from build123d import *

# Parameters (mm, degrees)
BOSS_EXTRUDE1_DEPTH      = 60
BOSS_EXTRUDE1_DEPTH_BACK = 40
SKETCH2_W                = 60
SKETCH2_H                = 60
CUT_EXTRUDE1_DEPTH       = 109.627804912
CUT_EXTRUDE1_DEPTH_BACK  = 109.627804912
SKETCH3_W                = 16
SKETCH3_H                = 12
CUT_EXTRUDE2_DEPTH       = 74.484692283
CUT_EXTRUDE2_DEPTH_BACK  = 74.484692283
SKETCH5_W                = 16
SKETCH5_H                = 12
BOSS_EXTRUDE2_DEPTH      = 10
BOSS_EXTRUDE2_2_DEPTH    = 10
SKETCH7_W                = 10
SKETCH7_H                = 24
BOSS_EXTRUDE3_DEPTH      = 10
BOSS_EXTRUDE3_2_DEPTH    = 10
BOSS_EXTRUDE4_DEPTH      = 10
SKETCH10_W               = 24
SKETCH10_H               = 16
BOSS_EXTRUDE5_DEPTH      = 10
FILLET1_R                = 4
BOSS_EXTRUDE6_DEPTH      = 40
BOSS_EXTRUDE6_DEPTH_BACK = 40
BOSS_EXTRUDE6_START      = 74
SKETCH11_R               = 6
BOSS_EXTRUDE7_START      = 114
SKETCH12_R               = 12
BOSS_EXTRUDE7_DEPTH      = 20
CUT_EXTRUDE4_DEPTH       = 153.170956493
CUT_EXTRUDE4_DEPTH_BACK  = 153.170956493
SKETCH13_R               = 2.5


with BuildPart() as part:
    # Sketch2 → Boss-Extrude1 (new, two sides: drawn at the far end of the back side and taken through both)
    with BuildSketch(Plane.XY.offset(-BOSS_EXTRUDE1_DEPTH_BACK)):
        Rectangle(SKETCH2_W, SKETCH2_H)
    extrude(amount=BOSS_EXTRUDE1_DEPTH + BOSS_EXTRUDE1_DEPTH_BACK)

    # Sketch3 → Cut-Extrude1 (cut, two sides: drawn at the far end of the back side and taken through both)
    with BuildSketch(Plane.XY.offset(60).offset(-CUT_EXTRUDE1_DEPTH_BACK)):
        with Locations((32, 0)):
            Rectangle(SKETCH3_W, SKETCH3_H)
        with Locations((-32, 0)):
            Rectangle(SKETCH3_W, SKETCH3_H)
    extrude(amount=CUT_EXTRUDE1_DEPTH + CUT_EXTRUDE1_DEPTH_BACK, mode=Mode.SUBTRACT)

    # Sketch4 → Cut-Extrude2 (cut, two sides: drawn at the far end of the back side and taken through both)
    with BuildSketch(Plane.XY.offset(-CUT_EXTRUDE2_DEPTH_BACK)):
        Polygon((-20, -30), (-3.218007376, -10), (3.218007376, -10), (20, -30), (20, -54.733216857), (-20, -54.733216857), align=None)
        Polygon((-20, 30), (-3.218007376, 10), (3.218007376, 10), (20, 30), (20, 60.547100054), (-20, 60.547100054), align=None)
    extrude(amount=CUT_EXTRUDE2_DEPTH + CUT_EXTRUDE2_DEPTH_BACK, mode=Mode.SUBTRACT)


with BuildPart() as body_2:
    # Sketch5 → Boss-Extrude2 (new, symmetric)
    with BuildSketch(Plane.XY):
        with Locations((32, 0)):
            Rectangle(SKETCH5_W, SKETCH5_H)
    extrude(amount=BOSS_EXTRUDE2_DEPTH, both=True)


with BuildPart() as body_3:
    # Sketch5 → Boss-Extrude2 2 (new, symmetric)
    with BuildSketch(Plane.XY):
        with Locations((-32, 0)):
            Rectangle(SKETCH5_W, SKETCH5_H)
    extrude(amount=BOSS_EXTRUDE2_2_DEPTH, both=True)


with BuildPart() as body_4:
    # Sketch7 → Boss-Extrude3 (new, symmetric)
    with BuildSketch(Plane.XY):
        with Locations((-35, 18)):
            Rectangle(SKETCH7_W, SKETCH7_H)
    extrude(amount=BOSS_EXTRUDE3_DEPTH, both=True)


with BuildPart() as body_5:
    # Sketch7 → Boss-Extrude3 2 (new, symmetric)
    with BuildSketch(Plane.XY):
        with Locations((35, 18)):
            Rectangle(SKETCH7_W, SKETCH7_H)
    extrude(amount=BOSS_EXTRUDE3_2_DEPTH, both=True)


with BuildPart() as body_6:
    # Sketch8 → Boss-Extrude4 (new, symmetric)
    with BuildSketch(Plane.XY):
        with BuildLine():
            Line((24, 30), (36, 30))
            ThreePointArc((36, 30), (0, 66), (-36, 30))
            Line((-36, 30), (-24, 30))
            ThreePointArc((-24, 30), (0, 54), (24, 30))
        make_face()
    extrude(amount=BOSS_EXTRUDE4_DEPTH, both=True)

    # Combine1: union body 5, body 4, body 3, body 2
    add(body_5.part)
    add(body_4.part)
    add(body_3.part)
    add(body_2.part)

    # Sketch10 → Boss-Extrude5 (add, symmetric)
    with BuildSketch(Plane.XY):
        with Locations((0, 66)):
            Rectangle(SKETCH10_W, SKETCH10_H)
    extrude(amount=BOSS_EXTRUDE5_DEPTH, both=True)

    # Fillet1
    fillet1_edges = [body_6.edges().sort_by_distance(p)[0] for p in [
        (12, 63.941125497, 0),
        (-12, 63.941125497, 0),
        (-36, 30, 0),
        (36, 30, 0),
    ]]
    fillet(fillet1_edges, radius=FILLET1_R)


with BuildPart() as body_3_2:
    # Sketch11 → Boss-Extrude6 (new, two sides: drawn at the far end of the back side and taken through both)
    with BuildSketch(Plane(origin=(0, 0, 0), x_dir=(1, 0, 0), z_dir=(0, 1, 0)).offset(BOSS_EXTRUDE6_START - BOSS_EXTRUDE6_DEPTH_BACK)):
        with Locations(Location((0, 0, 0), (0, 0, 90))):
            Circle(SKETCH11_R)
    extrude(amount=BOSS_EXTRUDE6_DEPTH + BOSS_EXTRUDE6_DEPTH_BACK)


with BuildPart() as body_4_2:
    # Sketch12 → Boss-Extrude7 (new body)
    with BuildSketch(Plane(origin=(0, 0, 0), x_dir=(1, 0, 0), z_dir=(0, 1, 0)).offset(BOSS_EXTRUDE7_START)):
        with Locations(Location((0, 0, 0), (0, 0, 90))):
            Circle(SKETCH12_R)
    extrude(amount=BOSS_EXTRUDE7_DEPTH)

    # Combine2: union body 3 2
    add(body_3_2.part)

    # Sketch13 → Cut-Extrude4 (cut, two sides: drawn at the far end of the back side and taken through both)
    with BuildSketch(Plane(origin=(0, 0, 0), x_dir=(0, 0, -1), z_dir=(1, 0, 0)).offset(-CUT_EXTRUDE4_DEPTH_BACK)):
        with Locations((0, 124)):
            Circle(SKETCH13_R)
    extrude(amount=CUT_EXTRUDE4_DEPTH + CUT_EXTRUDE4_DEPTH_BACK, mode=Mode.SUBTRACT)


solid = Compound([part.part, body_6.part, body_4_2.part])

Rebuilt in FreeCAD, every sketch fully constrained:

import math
import FreeCAD as App
import Part
import Sketcher

V = App.Vector
Q = App.Units.Quantity


def edges_at(feature, points):
    """Names of the edges that pass closest to the given points."""
    edges = feature.Shape.Edges
    near = lambda p: min(range(len(edges)), key=lambda i: edges[i].distToShape(Part.Vertex(*p))[0])
    return sorted({f"Edge{near(p) + 1}" for p in points})


def add_polygon(sketch, points):
    """Adds a closed chain of lines whose ends are joined by coincident constraints."""
    first, n = sketch.GeometryCount, len(points)
    for a, b in zip(points, points[1:] + points[:1]):
        sketch.addGeometry(Part.LineSegment(App.Vector(*a, 0), App.Vector(*b, 0)), False)
    for i in range(n):
        sketch.addConstraint(Sketcher.Constraint("Coincident", first + i, 2, first + (i + 1) % n, 1))

doc = App.newDocument("Part")
params = doc.addObject("Spreadsheet::Sheet", "Params")
for row, (alias, value) in enumerate([
    ("sketch1_width", "60 mm"),
    ("pad1_length", "60 mm"),
    ("pad1_length2", "40 mm"),
    ("sketch2_width", "16 mm"),
    ("sketch2_height", "12 mm"),
    ("sketch3_width", "40 mm"),
    ("sketch4_width", "16 mm"),
    ("sketch4_height", "12 mm"),
    ("pad2_length", "20 mm"),
    ("sketch5_width", "16 mm"),
    ("sketch5_height", "12 mm"),
    ("pad3_length", "20 mm"),
    ("sketch6_width", "10 mm"),
    ("sketch6_height", "24 mm"),
    ("pad4_length", "20 mm"),
    ("sketch7_width", "10 mm"),
    ("sketch7_height", "24 mm"),
    ("pad5_length", "20 mm"),
    ("sketch8_radius", "36 mm"),
    ("sketch8_radius2", "24 mm"),
    ("pad6_length", "20 mm"),
    ("sketch9_width", "24 mm"),
    ("sketch9_height", "16 mm"),
    ("pad7_length", "20 mm"),
    ("fillet_radius", "4 mm"),
    ("sketch10_diameter", "12 mm"),
    ("pad8_length", "40 mm"),
    ("pad8_length2", "40 mm"),
    ("sketch11_diameter", "24 mm"),
    ("pad9_length", "20 mm"),
    ("sketch12_diameter", "5 mm"),
], start=1):
    params.set(f"A{row}", alias)
    params.set(f"B{row}", "=" + value)
    params.setAlias(f"B{row}", alias)

body = doc.addObject("PartDesign::Body", "Body")

sketch1 = doc.addObject("Sketcher::SketchObject", "Sketch")
body.addObject(sketch1)
sketch1.AttachmentSupport = (doc.XY_Plane, [""])
sketch1.MapMode = "FlatFace"
add_polygon(sketch1, [(-30, 30), (-30, -30), (30, -30), (30, 30)])
sketch1.addConstraint(Sketcher.Constraint("Vertical", 0))
sketch1.addConstraint(Sketcher.Constraint("Horizontal", 1))
sketch1.addConstraint(Sketcher.Constraint("Vertical", 2))
sketch1.addConstraint(Sketcher.Constraint("Horizontal", 3))
sketch1.addConstraint(Sketcher.Constraint("Symmetric", 0, 2, 2, 2, -1, 1))
sketch1.addConstraint(Sketcher.Constraint("Equal", 3, 0))
sketch1.addConstraint(Sketcher.Constraint("DistanceX", 1, 1, 1, 2, 60.0))
sketch1.setExpression("Constraints[10]", "Params.sketch1_width")
pad1 = doc.addObject("PartDesign::Pad", "Pad")
body.addObject(pad1)
pad1.Profile = sketch1
pad1.Type = "TwoLengths"
pad1.setExpression("Length", "Params.pad1_length")
pad1.setExpression("Length2", "Params.pad1_length2")

sketch2 = doc.addObject("Sketcher::SketchObject", "Sketch001")
body.addObject(sketch2)
sketch2.AttachmentSupport = (doc.XY_Plane, [""])
sketch2.MapMode = "FlatFace"
sketch2.AttachmentOffset = App.Placement(V(0, 0, 60), App.Rotation())
add_polygon(sketch2, [(24, 6), (24, -6), (40, -6), (40, 6)])
add_polygon(sketch2, [(-40, 6), (-40, -6), (-24, -6), (-24, 6)])
sketch2.addConstraint(Sketcher.Constraint("Vertical", 0))
sketch2.addConstraint(Sketcher.Constraint("Horizontal", 1))
sketch2.addConstraint(Sketcher.Constraint("Vertical", 2))
sketch2.addConstraint(Sketcher.Constraint("Horizontal", 3))
sketch2.addConstraint(Sketcher.Constraint("Vertical", 4))
sketch2.addConstraint(Sketcher.Constraint("Horizontal", 5))
sketch2.addConstraint(Sketcher.Constraint("Vertical", 6))
sketch2.addConstraint(Sketcher.Constraint("Horizontal", 7))
sketch2.addConstraint(Sketcher.Constraint("Symmetric", 2, 2, 4, 2, -1, 1))
sketch2.addConstraint(Sketcher.Constraint("Symmetric", 0, 2, 6, 2, -1, 1))
sketch2.addConstraint(Sketcher.Constraint("Horizontal", 1, 2, 4, 2))
sketch2.addConstraint(Sketcher.Constraint("DistanceX", 1, 1, 1, 2, 16.0))
sketch2.addConstraint(Sketcher.Constraint("DistanceY", 0, 2, 0, 1, 12.0))
sketch2.addConstraint(Sketcher.Constraint("DistanceX", -1, 1, 0, 2, 24.0))
sketch2.setExpression("Constraints[19]", "Params.sketch2_width")
sketch2.setExpression("Constraints[20]", "Params.sketch2_height")
pocket1 = doc.addObject("PartDesign::Pocket", "Pocket")
body.addObject(pocket1)
pocket1.Profile = sketch2
pocket1.Type = "ThroughAll"
pocket1.Midplane = True

sketch3 = doc.addObject("Sketcher::SketchObject", "Sketch002")
body.addObject(sketch3)
sketch3.AttachmentSupport = (doc.XY_Plane, [""])
sketch3.MapMode = "FlatFace"
add_polygon(sketch3, [(-3, -10), (-20, -30), (-20, -55), (20, -55), (20, -30), (3, -10)])
add_polygon(sketch3, [(-20, 30), (-3, 10), (3, 10), (20, 30), (20, 61), (-20, 61)])
sketch3.addConstraint(Sketcher.Constraint("Vertical", 1))
sketch3.addConstraint(Sketcher.Constraint("Horizontal", 2))
sketch3.addConstraint(Sketcher.Constraint("Vertical", 3))
sketch3.addConstraint(Sketcher.Constraint("Horizontal", 5))
sketch3.addConstraint(Sketcher.Constraint("Horizontal", 7))
sketch3.addConstraint(Sketcher.Constraint("Vertical", 9))
sketch3.addConstraint(Sketcher.Constraint("Horizontal", 10))
sketch3.addConstraint(Sketcher.Constraint("Vertical", 11))
sketch3.addConstraint(Sketcher.Constraint("Symmetric", 4, 2, 6, 2, -1, 1))
sketch3.addConstraint(Sketcher.Constraint("Symmetric", 0, 2, 8, 2, -1, 1))
sketch3.addConstraint(Sketcher.Constraint("Symmetric", 3, 2, 11, 2, -1, 1))
sketch3.addConstraint(Sketcher.Constraint("Symmetric", 0, 2, 3, 2, -2))
sketch3.addConstraint(Sketcher.Constraint("Parallel", 0, 8))
sketch3.addConstraint(Sketcher.Constraint("Vertical", 5, 2, 6, 2))
sketch3.addConstraint(Sketcher.Constraint("DistanceX", 2, 1, 2, 2, 40.0))
sketch3.addConstraint(Sketcher.Constraint("Angle", 0, Q("-130 deg")))
sketch3.addConstraint(Sketcher.Constraint("DistanceY", 0, 2, -1, 1, 30.0))
sketch3.addConstraint(Sketcher.Constraint("DistanceY", 4, 2, -1, 1, 10.0))
sketch3.addConstraint(Sketcher.Constraint("DistanceY", 9, 1, 9, 2, 30.5471))
sketch3.addConstraint(Sketcher.Constraint("DistanceY", 1, 2, 1, 1, 24.733217))
sketch3.setExpression("Constraints[26]", "Params.sketch3_width")
pocket2 = doc.addObject("PartDesign::Pocket", "Pocket001")
body.addObject(pocket2)
pocket2.Profile = sketch3
pocket2.Type = "ThroughAll"
pocket2.Midplane = True
body2 = doc.addObject("PartDesign::Body", "Body001")

sketch4 = doc.addObject("Sketcher::SketchObject", "Sketch003")
body2.addObject(sketch4)
sketch4.AttachmentSupport = (doc.getObject("XY_Plane001"), [""])
sketch4.MapMode = "FlatFace"
add_polygon(sketch4, [(24, 6), (24, -6), (40, -6), (40, 6)])
sketch4.addConstraint(Sketcher.Constraint("Vertical", 0))
sketch4.addConstraint(Sketcher.Constraint("Horizontal", 1))
sketch4.addConstraint(Sketcher.Constraint("Vertical", 2))
sketch4.addConstraint(Sketcher.Constraint("Horizontal", 3))
sketch4.addConstraint(Sketcher.Constraint("DistanceX", 1, 1, 1, 2, 16.0))
sketch4.addConstraint(Sketcher.Constraint("DistanceY", 0, 2, 0, 1, 12.0))
sketch4.addConstraint(Sketcher.Constraint("DistanceX", -1, 1, 0, 2, 24.0))
sketch4.addConstraint(Sketcher.Constraint("DistanceY", 0, 2, -1, 1, 6.0))
sketch4.setExpression("Constraints[8]", "Params.sketch4_width")
sketch4.setExpression("Constraints[9]", "Params.sketch4_height")
pad2 = doc.addObject("PartDesign::Pad", "Pad001")
body2.addObject(pad2)
pad2.Profile = sketch4
pad2.setExpression("Length", "Params.pad2_length")
pad2.Midplane = True
body3 = doc.addObject("PartDesign::Body", "Body002")

sketch5 = doc.addObject("Sketcher::SketchObject", "Sketch004")
body3.addObject(sketch5)
sketch5.AttachmentSupport = (doc.getObject("XY_Plane002"), [""])
sketch5.MapMode = "FlatFace"
add_polygon(sketch5, [(-40, 6), (-40, -6), (-24, -6), (-24, 6)])
sketch5.addConstraint(Sketcher.Constraint("Vertical", 0))
sketch5.addConstraint(Sketcher.Constraint("Horizontal", 1))
sketch5.addConstraint(Sketcher.Constraint("Vertical", 2))
sketch5.addConstraint(Sketcher.Constraint("Horizontal", 3))
sketch5.addConstraint(Sketcher.Constraint("DistanceX", 1, 1, 1, 2, 16.0))
sketch5.addConstraint(Sketcher.Constraint("DistanceY", 0, 2, 0, 1, 12.0))
sketch5.addConstraint(Sketcher.Constraint("DistanceX", 0, 2, -1, 1, 40.0))
sketch5.addConstraint(Sketcher.Constraint("DistanceY", 0, 2, -1, 1, 6.0))
sketch5.setExpression("Constraints[8]", "Params.sketch5_width")
sketch5.setExpression("Constraints[9]", "Params.sketch5_height")
pad3 = doc.addObject("PartDesign::Pad", "Pad002")
body3.addObject(pad3)
pad3.Profile = sketch5
pad3.setExpression("Length", "Params.pad3_length")
pad3.Midplane = True
body4 = doc.addObject("PartDesign::Body", "Body003")

sketch6 = doc.addObject("Sketcher::SketchObject", "Sketch005")
body4.addObject(sketch6)
sketch6.AttachmentSupport = (doc.getObject("XY_Plane003"), [""])
sketch6.MapMode = "FlatFace"
add_polygon(sketch6, [(-40, 30), (-40, 6), (-30, 6), (-30, 30)])
sketch6.addConstraint(Sketcher.Constraint("Vertical", 0))
sketch6.addConstraint(Sketcher.Constraint("Horizontal", 1))
sketch6.addConstraint(Sketcher.Constraint("Vertical", 2))
sketch6.addConstraint(Sketcher.Constraint("Horizontal", 3))
sketch6.addConstraint(Sketcher.Constraint("DistanceX", 1, 1, 1, 2, 10.0))
sketch6.addConstraint(Sketcher.Constraint("DistanceY", 0, 2, 0, 1, 24.0))
sketch6.addConstraint(Sketcher.Constraint("DistanceX", 0, 2, -1, 1, 40.0))
sketch6.addConstraint(Sketcher.Constraint("DistanceY", -1, 1, 0, 2, 6.0))
sketch6.setExpression("Constraints[8]", "Params.sketch6_width")
sketch6.setExpression("Constraints[9]", "Params.sketch6_height")
pad4 = doc.addObject("PartDesign::Pad", "Pad003")
body4.addObject(pad4)
pad4.Profile = sketch6
pad4.setExpression("Length", "Params.pad4_length")
pad4.Midplane = True
body5 = doc.addObject("PartDesign::Body", "Body004")

sketch7 = doc.addObject("Sketcher::SketchObject", "Sketch006")
body5.addObject(sketch7)
sketch7.AttachmentSupport = (doc.getObject("XY_Plane004"), [""])
sketch7.MapMode = "FlatFace"
add_polygon(sketch7, [(30, 30), (30, 6), (40, 6), (40, 30)])
sketch7.addConstraint(Sketcher.Constraint("Vertical", 0))
sketch7.addConstraint(Sketcher.Constraint("Horizontal", 1))
sketch7.addConstraint(Sketcher.Constraint("Vertical", 2))
sketch7.addConstraint(Sketcher.Constraint("Horizontal", 3))
sketch7.addConstraint(Sketcher.Constraint("DistanceX", 1, 1, 1, 2, 10.0))
sketch7.addConstraint(Sketcher.Constraint("DistanceY", 0, 2, 0, 1, 24.0))
sketch7.addConstraint(Sketcher.Constraint("DistanceX", -1, 1, 0, 2, 30.0))
sketch7.addConstraint(Sketcher.Constraint("DistanceY", -1, 1, 0, 2, 6.0))
sketch7.setExpression("Constraints[8]", "Params.sketch7_width")
sketch7.setExpression("Constraints[9]", "Params.sketch7_height")
pad5 = doc.addObject("PartDesign::Pad", "Pad004")
body5.addObject(pad5)
pad5.Profile = sketch7
pad5.setExpression("Length", "Params.pad5_length")
pad5.Midplane = True
body6 = doc.addObject("PartDesign::Body", "Body005")

sketch8 = doc.addObject("Sketcher::SketchObject", "Sketch007")
body6.addObject(sketch8)
sketch8.AttachmentSupport = (doc.getObject("XY_Plane005"), [""])
sketch8.MapMode = "FlatFace"
sketch8.addGeometry(Part.LineSegment(V(24, 30, 0), V(36, 30, 0)), False)
sketch8.addGeometry(Part.ArcOfCircle(Part.Circle(V(0, 30, 0), V(0, 0, 1), 36), math.radians(0), math.radians(180)), False)
sketch8.addGeometry(Part.LineSegment(V(-36, 30, 0), V(-24, 30, 0)), False)
sketch8.addGeometry(Part.ArcOfCircle(Part.Circle(V(0, 30, 0), V(0, 0, 1), 24), math.radians(0), math.radians(180)), False)
sketch8.addConstraint(Sketcher.Constraint("Coincident", 0, 2, 1, 1))
sketch8.addConstraint(Sketcher.Constraint("Coincident", 1, 2, 2, 1))
sketch8.addConstraint(Sketcher.Constraint("Coincident", 2, 2, 3, 2))
sketch8.addConstraint(Sketcher.Constraint("Coincident", 3, 1, 0, 1))
sketch8.addConstraint(Sketcher.Constraint("Horizontal", 0))
sketch8.addConstraint(Sketcher.Constraint("Horizontal", 2))
sketch8.addConstraint(Sketcher.Constraint("Coincident", 3, 3, 1, 3))
sketch8.addConstraint(Sketcher.Constraint("Symmetric", 0, 2, 1, 2, -2))
sketch8.addConstraint(Sketcher.Constraint("Horizontal", 3, 3, 0, 2))
sketch8.addConstraint(Sketcher.Constraint("Radius", 1, 36.0))
sketch8.addConstraint(Sketcher.Constraint("Radius", 3, 24.0))
sketch8.addConstraint(Sketcher.Constraint("DistanceY", -1, 1, 1, 3, 30.0))
sketch8.setExpression("Constraints[9]", "Params.sketch8_radius")
sketch8.setExpression("Constraints[10]", "Params.sketch8_radius2")
pad6 = doc.addObject("PartDesign::Pad", "Pad005")
body6.addObject(pad6)
pad6.Profile = sketch8
pad6.setExpression("Length", "Params.pad6_length")
pad6.Midplane = True
doc.recompute()

boolean = doc.addObject("PartDesign::Boolean", "Boolean")
body6.addObject(boolean)
boolean.Type = "Fuse"
boolean.addObjects([body5])
doc.recompute()

boolean2 = doc.addObject("PartDesign::Boolean", "Boolean001")
body6.addObject(boolean2)
boolean2.Type = "Fuse"
boolean2.addObjects([body4])
doc.recompute()

boolean3 = doc.addObject("PartDesign::Boolean", "Boolean002")
body6.addObject(boolean3)
boolean3.Type = "Fuse"
boolean3.addObjects([body3])
doc.recompute()

boolean4 = doc.addObject("PartDesign::Boolean", "Boolean003")
body6.addObject(boolean4)
boolean4.Type = "Fuse"
boolean4.addObjects([body2])

sketch9 = doc.addObject("Sketcher::SketchObject", "Sketch008")
body6.addObject(sketch9)
sketch9.AttachmentSupport = (doc.getObject("XY_Plane005"), [""])
sketch9.MapMode = "FlatFace"
add_polygon(sketch9, [(-12, 74), (-12, 58), (12, 58), (12, 74)])
sketch9.addConstraint(Sketcher.Constraint("Vertical", 0))
sketch9.addConstraint(Sketcher.Constraint("Horizontal", 1))
sketch9.addConstraint(Sketcher.Constraint("Vertical", 2))
sketch9.addConstraint(Sketcher.Constraint("Horizontal", 3))
sketch9.addConstraint(Sketcher.Constraint("DistanceX", 1, 1, 1, 2, 24.0))
sketch9.addConstraint(Sketcher.Constraint("DistanceY", 0, 2, 0, 1, 16.0))
sketch9.addConstraint(Sketcher.Constraint("DistanceX", 0, 2, -1, 1, 12.0))
sketch9.addConstraint(Sketcher.Constraint("DistanceY", -1, 1, 0, 2, 58.0))
sketch9.setExpression("Constraints[8]", "Params.sketch9_width")
sketch9.setExpression("Constraints[9]", "Params.sketch9_height")
pad7 = doc.addObject("PartDesign::Pad", "Pad006")
body6.addObject(pad7)
pad7.Profile = sketch9
pad7.setExpression("Length", "Params.pad7_length")
pad7.Midplane = True
doc.recompute()

fillet = doc.addObject("PartDesign::Fillet", "Fillet")
body6.addObject(fillet)
fillet.Base = (pad7, edges_at(pad7, [
    (12, 63.941, 0),
    (-12, 63.941, 0),
    (-36, 30, 0),
    (36, 30, 0),
]))
fillet.setExpression("Radius", "Params.fillet_radius")
body7 = doc.addObject("PartDesign::Body", "Body006")

sketch10 = doc.addObject("Sketcher::SketchObject", "Sketch009")
body7.addObject(sketch10)
sketch10.AttachmentSupport = (doc.getObject("XZ_Plane006"), [""])
sketch10.MapMode = "FlatFace"
sketch10.AttachmentOffset = App.Placement(V(0, 0, -74), App.Rotation())
sketch10.addGeometry(Part.Circle(V(0, 0, 0), V(0, 0, 1), 6), False)
sketch10.addConstraint(Sketcher.Constraint("Coincident", 0, 3, -1, 1))
sketch10.addConstraint(Sketcher.Constraint("Diameter", 0, 12.0))
sketch10.setExpression("Constraints[1]", "Params.sketch10_diameter")
pad8 = doc.addObject("PartDesign::Pad", "Pad007")
body7.addObject(pad8)
pad8.Profile = sketch10
pad8.Type = "TwoLengths"
pad8.setExpression("Length", "Params.pad8_length")
pad8.setExpression("Length2", "Params.pad8_length2")
pad8.Reversed = True
body8 = doc.addObject("PartDesign::Body", "Body007")

sketch11 = doc.addObject("Sketcher::SketchObject", "Sketch010")
body8.addObject(sketch11)
sketch11.AttachmentSupport = (doc.getObject("XZ_Plane007"), [""])
sketch11.MapMode = "FlatFace"
sketch11.AttachmentOffset = App.Placement(V(0, 0, -114), App.Rotation())
sketch11.addGeometry(Part.Circle(V(0, 0, 0), V(0, 0, 1), 12), False)
sketch11.addConstraint(Sketcher.Constraint("Coincident", 0, 3, -1, 1))
sketch11.addConstraint(Sketcher.Constraint("Diameter", 0, 24.0))
sketch11.setExpression("Constraints[1]", "Params.sketch11_diameter")
pad9 = doc.addObject("PartDesign::Pad", "Pad008")
body8.addObject(pad9)
pad9.Profile = sketch11
pad9.setExpression("Length", "Params.pad9_length")
pad9.Reversed = True
doc.recompute()

boolean5 = doc.addObject("PartDesign::Boolean", "Boolean004")
body8.addObject(boolean5)
boolean5.Type = "Fuse"
boolean5.addObjects([body7])

sketch12 = doc.addObject("Sketcher::SketchObject", "Sketch011")
body8.addObject(sketch12)
sketch12.AttachmentSupport = (doc.getObject("YZ_Plane007"), [""])
sketch12.MapMode = "FlatFace"
sketch12.addGeometry(Part.Circle(V(124, 0, 0), V(0, 0, 1), 2.5), False)
sketch12.addConstraint(Sketcher.Constraint("PointOnObject", 0, 3, -1))
sketch12.addConstraint(Sketcher.Constraint("Diameter", 0, 5.0))
sketch12.addConstraint(Sketcher.Constraint("DistanceX", -1, 1, 0, 3, 124.0))
sketch12.setExpression("Constraints[1]", "Params.sketch12_diameter")
pocket3 = doc.addObject("PartDesign::Pocket", "Pocket002")
body8.addObject(pocket3)
pocket3.Profile = sketch12
pocket3.Type = "ThroughAll"
pocket3.Midplane = True

doc.recompute()
